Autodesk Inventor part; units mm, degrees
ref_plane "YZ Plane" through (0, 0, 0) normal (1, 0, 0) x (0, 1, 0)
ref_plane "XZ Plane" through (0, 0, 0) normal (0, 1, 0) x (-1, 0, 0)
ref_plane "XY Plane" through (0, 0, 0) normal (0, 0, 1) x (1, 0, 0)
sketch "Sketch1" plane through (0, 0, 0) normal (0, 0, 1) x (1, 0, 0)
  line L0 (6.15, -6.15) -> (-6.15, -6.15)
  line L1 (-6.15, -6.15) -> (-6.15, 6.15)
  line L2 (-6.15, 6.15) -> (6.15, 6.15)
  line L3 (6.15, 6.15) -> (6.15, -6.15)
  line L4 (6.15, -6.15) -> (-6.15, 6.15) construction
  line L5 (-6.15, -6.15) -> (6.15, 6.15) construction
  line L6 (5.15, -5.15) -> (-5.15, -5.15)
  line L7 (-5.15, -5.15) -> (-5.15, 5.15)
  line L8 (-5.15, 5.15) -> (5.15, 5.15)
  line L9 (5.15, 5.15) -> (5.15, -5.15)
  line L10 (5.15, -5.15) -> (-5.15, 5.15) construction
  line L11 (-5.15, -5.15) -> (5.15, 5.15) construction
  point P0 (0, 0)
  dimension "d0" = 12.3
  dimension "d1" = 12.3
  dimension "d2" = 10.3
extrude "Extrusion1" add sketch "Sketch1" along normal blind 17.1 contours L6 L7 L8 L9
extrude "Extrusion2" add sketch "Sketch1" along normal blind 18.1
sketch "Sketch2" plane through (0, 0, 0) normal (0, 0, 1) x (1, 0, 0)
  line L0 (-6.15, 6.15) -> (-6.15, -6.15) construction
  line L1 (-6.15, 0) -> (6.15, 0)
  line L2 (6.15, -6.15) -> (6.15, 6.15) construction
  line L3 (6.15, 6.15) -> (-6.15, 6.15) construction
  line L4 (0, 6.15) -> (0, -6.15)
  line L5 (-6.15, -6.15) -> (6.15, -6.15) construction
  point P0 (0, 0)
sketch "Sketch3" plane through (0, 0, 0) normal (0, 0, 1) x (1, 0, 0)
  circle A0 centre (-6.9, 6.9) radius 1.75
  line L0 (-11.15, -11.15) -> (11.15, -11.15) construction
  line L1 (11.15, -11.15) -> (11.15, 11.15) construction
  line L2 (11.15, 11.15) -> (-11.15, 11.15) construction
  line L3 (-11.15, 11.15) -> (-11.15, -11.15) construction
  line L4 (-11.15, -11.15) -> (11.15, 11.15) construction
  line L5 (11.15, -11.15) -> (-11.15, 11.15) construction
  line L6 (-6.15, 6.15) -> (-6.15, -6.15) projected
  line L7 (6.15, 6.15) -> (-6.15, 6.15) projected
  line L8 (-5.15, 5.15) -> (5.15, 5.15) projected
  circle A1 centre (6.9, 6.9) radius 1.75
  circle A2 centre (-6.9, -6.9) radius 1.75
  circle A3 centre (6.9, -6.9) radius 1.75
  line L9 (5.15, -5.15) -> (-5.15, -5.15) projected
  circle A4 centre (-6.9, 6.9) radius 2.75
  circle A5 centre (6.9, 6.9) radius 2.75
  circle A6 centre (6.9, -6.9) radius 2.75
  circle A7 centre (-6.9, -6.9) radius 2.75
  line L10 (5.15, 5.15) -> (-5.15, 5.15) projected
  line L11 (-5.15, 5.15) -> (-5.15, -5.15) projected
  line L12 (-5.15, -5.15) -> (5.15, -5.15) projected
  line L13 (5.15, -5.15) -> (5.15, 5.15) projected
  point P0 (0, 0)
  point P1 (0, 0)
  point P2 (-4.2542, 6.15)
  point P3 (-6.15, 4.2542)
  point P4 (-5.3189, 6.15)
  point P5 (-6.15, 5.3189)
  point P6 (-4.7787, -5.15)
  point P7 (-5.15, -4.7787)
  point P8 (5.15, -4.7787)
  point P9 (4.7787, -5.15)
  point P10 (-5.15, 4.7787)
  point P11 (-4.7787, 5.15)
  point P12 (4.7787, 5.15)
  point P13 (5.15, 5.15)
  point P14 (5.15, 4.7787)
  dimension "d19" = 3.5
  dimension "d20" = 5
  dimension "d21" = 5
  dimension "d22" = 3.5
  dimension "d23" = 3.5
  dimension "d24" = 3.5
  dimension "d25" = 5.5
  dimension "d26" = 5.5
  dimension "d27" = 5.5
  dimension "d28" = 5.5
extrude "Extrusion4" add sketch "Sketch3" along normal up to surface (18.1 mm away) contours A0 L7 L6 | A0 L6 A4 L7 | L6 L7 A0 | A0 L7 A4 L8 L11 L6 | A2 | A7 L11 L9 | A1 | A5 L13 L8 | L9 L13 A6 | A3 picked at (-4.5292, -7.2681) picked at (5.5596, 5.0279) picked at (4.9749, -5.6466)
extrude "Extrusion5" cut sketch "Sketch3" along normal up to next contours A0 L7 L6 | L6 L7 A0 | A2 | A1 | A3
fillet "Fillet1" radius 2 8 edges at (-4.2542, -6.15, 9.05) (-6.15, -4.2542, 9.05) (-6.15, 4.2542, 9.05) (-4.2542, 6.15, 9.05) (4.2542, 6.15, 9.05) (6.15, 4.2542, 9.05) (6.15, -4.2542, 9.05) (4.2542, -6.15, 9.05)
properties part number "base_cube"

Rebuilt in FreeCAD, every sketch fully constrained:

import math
import FreeCAD as App
import Part
import Sketcher


def edges_at(feature, points):
    """Names of the edges that pass closest to the given points."""
    edges = feature.Shape.Edges
    near = lambda p: min(range(len(edges)), key=lambda i: edges[i].distToShape(Part.Vertex(*p))[0])
    return sorted({f"Edge{near(p) + 1}" for p in points})


def add_polygon(sketch, points):
    """Adds a closed chain of lines whose ends are joined by coincident constraints."""
    first, n = sketch.GeometryCount, len(points)
    for a, b in zip(points, points[1:] + points[:1]):
        sketch.addGeometry(Part.LineSegment(App.Vector(*a, 0), App.Vector(*b, 0)), False)
    for i in range(n):
        sketch.addConstraint(Sketcher.Constraint("Coincident", first + i, 2, first + (i + 1) % n, 1))

doc = App.newDocument("Part")
params = doc.addObject("Spreadsheet::Sheet", "Params")
for row, (alias, value) in enumerate([
    ("sketch1_width", "10.3 mm"),
    ("pad1_length", "17.1 mm"),
    ("sketch2_width", "12.3 mm"),
    ("sketch2_width2", "10.3 mm"),
    ("pad2_length", "18.1 mm"),
    ("sketch3_radius", "2.75 mm"),
    ("pad3_length", "18.1 mm"),
    ("sketch4_diameter", "3.5 mm"),
    ("pocket1_length", "18.1 mm"),
    ("fillet_radius", "2 mm"),
], start=1):
    params.set(f"A{row}", alias)
    params.set(f"B{row}", "=" + value)
    params.setAlias(f"B{row}", alias)

body = doc.addObject("PartDesign::Body", "Body")

# Sketch on XY plane
sketch1 = body.newObject("Sketcher::SketchObject", "Sketch")
sketch1.AttachmentSupport = (doc.getObject("XY_Plane"), [""])
sketch1.MapMode = "FlatFace"
add_polygon(sketch1, [(-5, -5), (5, -5), (5, 5), (-5, 5)])  # lines 0-3
sketch1.addConstraint([
    Sketcher.Constraint("Horizontal", 0),
    Sketcher.Constraint("Vertical", 1),
    Sketcher.Constraint("Horizontal", 2),
    Sketcher.Constraint("Vertical", 3),
    Sketcher.Constraint("Symmetric", 0, 2, 2, 2, -1, 1),
    Sketcher.Constraint("Equal", 2, 1),
    Sketcher.Constraint("DistanceX", 0, 1, 0, 2, 10.3),
])
sketch1.setExpression("Constraints[10]", "Params.sketch1_width")
pad1 = body.newObject("PartDesign::Pad", "Pad")
pad1.Profile = sketch1
pad1.setExpression("Length", "Params.pad1_length")

# Sketch on XY plane
sketch2 = body.newObject("Sketcher::SketchObject", "Sketch001")
sketch2.AttachmentSupport = (doc.getObject("XY_Plane"), [""])
sketch2.MapMode = "FlatFace"
add_polygon(sketch2, [(-6, -6), (6, -6), (6, 6), (-6, 6)])  # lines 0-3
add_polygon(sketch2, [(5, 5), (5, -5), (-5, -5), (-5, 5)])  # lines 4-7
sketch2.addConstraint([
    Sketcher.Constraint("Horizontal", 0),
    Sketcher.Constraint("Vertical", 1),
    Sketcher.Constraint("Horizontal", 2),
    Sketcher.Constraint("Vertical", 3),
    Sketcher.Constraint("Vertical", 4),
    Sketcher.Constraint("Horizontal", 5),
    Sketcher.Constraint("Vertical", 6),
    Sketcher.Constraint("Horizontal", 7),
    Sketcher.Constraint("Symmetric", 0, 2, 2, 2, -1, 1),
    Sketcher.Constraint("Symmetric", 4, 2, 6, 2, -1, 1),
    Sketcher.Constraint("Equal", 2, 1),
    Sketcher.Constraint("Equal", 7, 4),
    Sketcher.Constraint("DistanceX", 0, 1, 0, 2, 12.3),
    Sketcher.Constraint("DistanceX", 5, 2, 5, 1, 10.3),
])
sketch2.setExpression("Constraints[20]", "Params.sketch2_width")
sketch2.setExpression("Constraints[21]", "Params.sketch2_width2")
pad2 = body.newObject("PartDesign::Pad", "Pad001")
pad2.Profile = sketch2
pad2.setExpression("Length", "Params.pad2_length")

# Sketch on XY plane
sketch3 = body.newObject("Sketcher::SketchObject", "Sketch002")
sketch3.AttachmentSupport = (doc.getObject("XY_Plane"), [""])
sketch3.MapMode = "FlatFace"
sketch3.addGeometry([
    Part.LineSegment(App.Vector(-5.15, 4.78, 0), App.Vector(-5.15, 5.15, 0)),  # 0
    Part.LineSegment(App.Vector(-5.15, 5.15, 0), App.Vector(-4.78, 5.15, 0)),  # 1
    Part.ArcOfCircle(Part.Circle(App.Vector(-6.9, 6.9, 0), App.Vector(0, 0, 1), 2.75), math.radians(-40), math.radians(310)),  # 2
    Part.ArcOfCircle(Part.Circle(App.Vector(-6.9, -6.9, 0), App.Vector(0, 0, 1), 2.75), math.radians(50), math.radians(74)),  # 3
    Part.ArcOfCircle(Part.Circle(App.Vector(-6.9, -6.9, 0), App.Vector(0, 0, 1), 2.75), math.radians(74), math.radians(400)),  # 4
    Part.LineSegment(App.Vector(-4.78, -5.15, 0), App.Vector(-5.15, -5.15, 0)),  # 5
    Part.LineSegment(App.Vector(-5.15, -5.15, 0), App.Vector(-5.15, -4.78, 0)),  # 6
    Part.ArcOfCircle(Part.Circle(App.Vector(6.9, 6.9, 0), App.Vector(0, 0, 1), 2.75), math.radians(-164), math.radians(-140)),  # 7
    Part.LineSegment(App.Vector(4.78, 5.15, 0), App.Vector(5.15, 5.15, 0)),  # 8
    Part.LineSegment(App.Vector(5.15, 5.15, 0), App.Vector(5.15, 4.78, 0)),  # 9
    Part.ArcOfCircle(Part.Circle(App.Vector(6.9, 6.9, 0), App.Vector(0, 0, 1), 2.75), math.radians(-130), math.radians(196)),  # 10
    Part.LineSegment(App.Vector(5.15, -5.15, 0), App.Vector(4.78, -5.15, 0)),  # 11
    Part.ArcOfCircle(Part.Circle(App.Vector(6.9, -6.9, 0), App.Vector(0, 0, 1), 2.75), math.radians(140), math.radians(490)),  # 12
    Part.LineSegment(App.Vector(5.15, -4.78, 0), App.Vector(5.15, -5.15, 0)),  # 13
], False)
sketch3.addConstraint([
    Sketcher.Constraint("Coincident", 0, 2, 1, 1),
    Sketcher.Constraint("Coincident", 1, 2, 2, 1),
    Sketcher.Constraint("Coincident", 2, 2, 0, 1),
    Sketcher.Constraint("Tangent", 3, 2, 4, 1),
    Sketcher.Constraint("Coincident", 4, 2, 5, 1),
    Sketcher.Constraint("Coincident", 5, 2, 6, 1),
    Sketcher.Constraint("Coincident", 6, 2, 3, 1),
    Sketcher.Constraint("Coincident", 7, 2, 8, 1),
    Sketcher.Constraint("Coincident", 8, 2, 9, 1),
    Sketcher.Constraint("Coincident", 9, 2, 10, 1),
    Sketcher.Constraint("Tangent", 10, 2, 7, 1),
    Sketcher.Constraint("Coincident", 11, 2, 12, 1),
    Sketcher.Constraint("Coincident", 12, 2, 13, 1),
    Sketcher.Constraint("Coincident", 13, 2, 11, 1),
    Sketcher.Constraint("Vertical", 0),
    Sketcher.Constraint("Horizontal", 1),
    Sketcher.Constraint("Horizontal", 5),
    Sketcher.Constraint("Vertical", 6),
    Sketcher.Constraint("Horizontal", 8),
    Sketcher.Constraint("Vertical", 9),
    Sketcher.Constraint("Horizontal", 11),
    Sketcher.Constraint("Vertical", 13),
    Sketcher.Constraint("Equal", 2, 3),
    Sketcher.Constraint("Equal", 3, 4),
    Sketcher.Constraint("Equal", 4, 7),
    Sketcher.Constraint("Equal", 7, 10),
    Sketcher.Constraint("Equal", 10, 12),
    Sketcher.Constraint("Symmetric", 3, 3, 7, 3, -1, 1),
    Sketcher.Constraint("Symmetric", 2, 3, 12, 3, -1, 1),
    Sketcher.Constraint("Symmetric", 5, 2, 8, 2, -1, 1),
    Sketcher.Constraint("Symmetric", 0, 2, 13, 2, -1, 1),
    Sketcher.Constraint("Symmetric", 2, 3, 7, 3, -2),
    Sketcher.Constraint("Symmetric", 0, 2, 8, 2, -2),
    Sketcher.Constraint("Equal", 11, 0),
    Sketcher.Constraint("Radius", 2, 2.75),
    Sketcher.Constraint("DistanceX", 3, 2, 2, 2, 1.0),
    Sketcher.Constraint("DistanceY", 7, 2, 10, 2, 1.0),
    Sketcher.Constraint("DistanceX", 2, 3, -1, 1, 6.9),
    Sketcher.Constraint("DistanceY", -1, 1, 2, 3, 6.9),
    Sketcher.Constraint("DistanceY", 4, 2, 1, 2, 10.3),
])
sketch3.setExpression("Constraints[34]", "Params.sketch3_radius")
pad3 = body.newObject("PartDesign::Pad", "Pad002")
pad3.Profile = sketch3
pad3.setExpression("Length", "Params.pad3_length")

# Sketch on XY plane
sketch4 = body.newObject("Sketcher::SketchObject", "Sketch003")
sketch4.AttachmentSupport = (doc.getObject("XY_Plane"), [""])
sketch4.MapMode = "FlatFace"
sketch4.addGeometry([
    Part.Circle(App.Vector(-6.9, 6.9, 0), App.Vector(0, 0, 1), 1.8),
    Part.Circle(App.Vector(-6.9, -6.9, 0), App.Vector(0, 0, 1), 1.8),
    Part.Circle(App.Vector(6.9, 6.9, 0), App.Vector(0, 0, 1), 1.8),
    Part.Circle(App.Vector(6.9, -6.9, 0), App.Vector(0, 0, 1), 1.8),
], False)
sketch4.addConstraint([
    Sketcher.Constraint("Equal", 0, 1),
    Sketcher.Constraint("Equal", 1, 2),
    Sketcher.Constraint("Equal", 2, 3),
    Sketcher.Constraint("Symmetric", 1, 3, 2, 3, -1, 1),
    Sketcher.Constraint("Symmetric", 0, 3, 3, 3, -1, 1),
    Sketcher.Constraint("Symmetric", 0, 3, 2, 3, -2),
    Sketcher.Constraint("Diameter", 0, 3.5),
    Sketcher.Constraint("DistanceX", 0, 3, -1, 1, 6.9),
    Sketcher.Constraint("DistanceY", -1, 1, 0, 3, 6.9),
])
sketch4.setExpression("Constraints[6]", "Params.sketch4_diameter")
pocket1 = body.newObject("PartDesign::Pocket", "Pocket")
pocket1.Profile = sketch4
pocket1.setExpression("Length", "Params.pocket1_length")
pocket1.Reversed = True
doc.recompute()

fillet = body.newObject("PartDesign::Fillet", "Fillet")
fillet.Base = (pocket1, edges_at(pocket1, [
    (-4.254, -6.15, 9.05),
    (-6.15, -4.254, 9.05),
    (-6.15, 4.254, 9.05),
    (-4.254, 6.15, 9.05),
    (4.254, 6.15, 9.05),
    (6.15, 4.254, 9.05),
    (6.15, -4.254, 9.05),
    (4.254, -6.15, 9.05),
]))
fillet.setExpression("Radius", "Params.fillet_radius")

doc.recompute()
